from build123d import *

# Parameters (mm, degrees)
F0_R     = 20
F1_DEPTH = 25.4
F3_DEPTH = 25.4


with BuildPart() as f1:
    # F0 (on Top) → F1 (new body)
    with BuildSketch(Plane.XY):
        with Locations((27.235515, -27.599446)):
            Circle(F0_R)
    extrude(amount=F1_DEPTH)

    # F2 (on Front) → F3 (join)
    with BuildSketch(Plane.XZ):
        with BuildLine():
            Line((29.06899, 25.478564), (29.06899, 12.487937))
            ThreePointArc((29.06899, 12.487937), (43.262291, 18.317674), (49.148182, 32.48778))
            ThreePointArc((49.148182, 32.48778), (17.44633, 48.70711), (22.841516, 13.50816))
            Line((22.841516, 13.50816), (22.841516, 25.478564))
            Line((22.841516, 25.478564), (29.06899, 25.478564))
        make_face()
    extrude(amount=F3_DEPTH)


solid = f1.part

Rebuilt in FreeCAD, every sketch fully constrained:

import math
import FreeCAD as App
import Part
import Sketcher
from FreeCAD import Vector
Q = App.Units.Quantity

doc = App.newDocument("Part")
body = doc.addObject("PartDesign::Body", "Body")

# Sketch on XY plane
sketch1 = doc.addObject("Sketcher::SketchObject", "Sketch")
body.addObject(sketch1)
sketch1.AttachmentSupport = (doc.XY_Plane, [""])
sketch1.MapMode = "FlatFace"
sketch1.addGeometry(Part.Circle(Vector(27, -28, 0), Vector(0, 0, 1), 20), False)
sketch1.addConstraint([
    Sketcher.Constraint("Diameter", 0, Q("40 mm")),
    Sketcher.Constraint("DistanceX", -1, 1, 0, 3, Q("27.235515 mm")),
    Sketcher.Constraint("DistanceY", 0, 3, -1, 1, Q("27.599446 mm")),
])
pad1 = doc.addObject("PartDesign::Pad", "Pad")
body.addObject(pad1)
pad1.Profile = sketch1
pad1.Length = 25.4

# Sketch on XZ plane
sketch2 = doc.addObject("Sketcher::SketchObject", "Sketch001")
body.addObject(sketch2)
sketch2.AttachmentSupport = (doc.XZ_Plane, [""])
sketch2.MapMode = "FlatFace"
sketch2.addGeometry([
    Part.LineSegment(Vector(29, 25, 0), Vector(29, 12, 0)),  # 0
    Part.ArcOfCircle(Part.Circle(Vector(29, 32, 0), Vector(0, 0, 1), 20), math.radians(-90), math.radians(0)),  # 1
    Part.ArcOfCircle(Part.Circle(Vector(29, 32, 0), Vector(0, 0, 1), 20), math.radians(0), math.radians(252)),  # 2
    Part.LineSegment(Vector(23, 14, 0), Vector(23, 25, 0)),  # 3
    Part.LineSegment(Vector(23, 25, 0), Vector(29, 25, 0)),  # 4
], False)
sketch2.addConstraint([
    Sketcher.Constraint("Coincident", 0, 2, 1, 1),
    Sketcher.Constraint("Tangent", 1, 2, 2, 1),
    Sketcher.Constraint("Coincident", 2, 2, 3, 1),
    Sketcher.Constraint("Coincident", 3, 2, 4, 1),
    Sketcher.Constraint("Coincident", 4, 2, 0, 1),
    Sketcher.Constraint("Vertical", 0),
    Sketcher.Constraint("Vertical", 3),
    Sketcher.Constraint("Horizontal", 4),
    Sketcher.Constraint("Equal", 1, 2),
    Sketcher.Constraint("Horizontal", 2, 3, 1, 2),
    Sketcher.Constraint("Radius", 1, Q("20.000001 mm")),
    Sketcher.Constraint("DistanceX", 4, 1, 4, 2, Q("6.227474 mm")),
    Sketcher.Constraint("DistanceY", 0, 2, 0, 1, Q("12.990627 mm")),
    Sketcher.Constraint("DistanceY", 3, 1, 3, 2, Q("11.970404 mm")),
    Sketcher.Constraint("DistanceX", -1, 1, 1, 3, Q("29.148181 mm")),
    Sketcher.Constraint("DistanceY", -1, 1, 1, 3, Q("32.487781 mm")),
])
pad2 = doc.addObject("PartDesign::Pad", "Pad001")
body.addObject(pad2)
pad2.Profile = sketch2
pad2.Length = 25.4

doc.recompute()
